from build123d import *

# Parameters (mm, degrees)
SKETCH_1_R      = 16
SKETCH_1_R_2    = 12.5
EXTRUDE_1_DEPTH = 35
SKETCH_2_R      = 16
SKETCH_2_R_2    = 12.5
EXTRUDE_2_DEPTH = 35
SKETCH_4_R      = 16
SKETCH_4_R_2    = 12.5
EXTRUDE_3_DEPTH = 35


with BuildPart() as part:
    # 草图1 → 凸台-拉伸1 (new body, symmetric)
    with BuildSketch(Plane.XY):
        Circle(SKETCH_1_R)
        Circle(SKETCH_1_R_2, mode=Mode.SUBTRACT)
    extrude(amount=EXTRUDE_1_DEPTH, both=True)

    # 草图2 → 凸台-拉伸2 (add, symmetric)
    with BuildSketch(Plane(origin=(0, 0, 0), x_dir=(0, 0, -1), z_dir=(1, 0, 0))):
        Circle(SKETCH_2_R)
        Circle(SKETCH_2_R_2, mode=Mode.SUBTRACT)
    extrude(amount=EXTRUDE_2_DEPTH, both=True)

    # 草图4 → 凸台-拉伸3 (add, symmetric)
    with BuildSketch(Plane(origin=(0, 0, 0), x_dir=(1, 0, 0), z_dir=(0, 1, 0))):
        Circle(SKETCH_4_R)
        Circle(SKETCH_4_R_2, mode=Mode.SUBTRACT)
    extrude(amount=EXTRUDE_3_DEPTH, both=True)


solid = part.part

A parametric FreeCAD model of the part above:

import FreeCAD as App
import Part
import Sketcher
Q = App.Units.Quantity

doc = App.newDocument("Part")
body = doc.addObject("PartDesign::Body", "Body")

# Sketch on XY plane
sketch1 = body.newObject("Sketcher::SketchObject", "Sketch")
sketch1.AttachmentSupport = (doc.getObject("XY_Plane"), [""])
sketch1.MapMode = "FlatFace"
sketch1.addGeometry(Part.Circle(App.Vector(0, 0, 0), App.Vector(0, 0, 1), 16), False)
sketch1.addGeometry(Part.Circle(App.Vector(0, 0, 0), App.Vector(0, 0, 1), 12.5), False)
sketch1.addConstraint(Sketcher.Constraint("Coincident", 0, 3, -1, 1))
sketch1.addConstraint(Sketcher.Constraint("Coincident", 1, 3, -1, 1))
sketch1.addConstraint(Sketcher.Constraint("Diameter", 0, Q("32 mm")))
sketch1.addConstraint(Sketcher.Constraint("Diameter", 1, Q("25 mm")))
pad1 = body.newObject("PartDesign::Pad", "Pad")
pad1.Profile = sketch1
pad1.Length = 70
pad1.Midplane = True

# Sketch on YZ plane
sketch2 = body.newObject("Sketcher::SketchObject", "Sketch001")
sketch2.AttachmentSupport = (doc.getObject("YZ_Plane"), [""])
sketch2.MapMode = "FlatFace"
sketch2.addGeometry(Part.Circle(App.Vector(0, 0, 0), App.Vector(0, 0, 1), 16), False)
sketch2.addGeometry(Part.Circle(App.Vector(0, 0, 0), App.Vector(0, 0, 1), 12.5), False)
sketch2.addConstraint(Sketcher.Constraint("Coincident", 0, 3, -1, 1))
sketch2.addConstraint(Sketcher.Constraint("Coincident", 1, 3, -1, 1))
sketch2.addConstraint(Sketcher.Constraint("Diameter", 0, Q("32 mm")))
sketch2.addConstraint(Sketcher.Constraint("Diameter", 1, Q("25 mm")))
pad2 = body.newObject("PartDesign::Pad", "Pad001")
pad2.Profile = sketch2
pad2.Length = 70
pad2.Midplane = True

# Sketch on XZ plane
sketch3 = body.newObject("Sketcher::SketchObject", "Sketch002")
sketch3.AttachmentSupport = (doc.getObject("XZ_Plane"), [""])
sketch3.MapMode = "FlatFace"
sketch3.addGeometry(Part.Circle(App.Vector(0, 0, 0), App.Vector(0, 0, 1), 16), False)
sketch3.addGeometry(Part.Circle(App.Vector(0, 0, 0), App.Vector(0, 0, 1), 12.5), False)
sketch3.addConstraint(Sketcher.Constraint("Coincident", 0, 3, -1, 1))
sketch3.addConstraint(Sketcher.Constraint("Coincident", 1, 3, -1, 1))
sketch3.addConstraint(Sketcher.Constraint("Diameter", 0, Q("32 mm")))
sketch3.addConstraint(Sketcher.Constraint("Diameter", 1, Q("25 mm")))
pad3 = body.newObject("PartDesign::Pad", "Pad002")
pad3.Profile = sketch3
pad3.Length = 70
pad3.Midplane = True

doc.recompute()
